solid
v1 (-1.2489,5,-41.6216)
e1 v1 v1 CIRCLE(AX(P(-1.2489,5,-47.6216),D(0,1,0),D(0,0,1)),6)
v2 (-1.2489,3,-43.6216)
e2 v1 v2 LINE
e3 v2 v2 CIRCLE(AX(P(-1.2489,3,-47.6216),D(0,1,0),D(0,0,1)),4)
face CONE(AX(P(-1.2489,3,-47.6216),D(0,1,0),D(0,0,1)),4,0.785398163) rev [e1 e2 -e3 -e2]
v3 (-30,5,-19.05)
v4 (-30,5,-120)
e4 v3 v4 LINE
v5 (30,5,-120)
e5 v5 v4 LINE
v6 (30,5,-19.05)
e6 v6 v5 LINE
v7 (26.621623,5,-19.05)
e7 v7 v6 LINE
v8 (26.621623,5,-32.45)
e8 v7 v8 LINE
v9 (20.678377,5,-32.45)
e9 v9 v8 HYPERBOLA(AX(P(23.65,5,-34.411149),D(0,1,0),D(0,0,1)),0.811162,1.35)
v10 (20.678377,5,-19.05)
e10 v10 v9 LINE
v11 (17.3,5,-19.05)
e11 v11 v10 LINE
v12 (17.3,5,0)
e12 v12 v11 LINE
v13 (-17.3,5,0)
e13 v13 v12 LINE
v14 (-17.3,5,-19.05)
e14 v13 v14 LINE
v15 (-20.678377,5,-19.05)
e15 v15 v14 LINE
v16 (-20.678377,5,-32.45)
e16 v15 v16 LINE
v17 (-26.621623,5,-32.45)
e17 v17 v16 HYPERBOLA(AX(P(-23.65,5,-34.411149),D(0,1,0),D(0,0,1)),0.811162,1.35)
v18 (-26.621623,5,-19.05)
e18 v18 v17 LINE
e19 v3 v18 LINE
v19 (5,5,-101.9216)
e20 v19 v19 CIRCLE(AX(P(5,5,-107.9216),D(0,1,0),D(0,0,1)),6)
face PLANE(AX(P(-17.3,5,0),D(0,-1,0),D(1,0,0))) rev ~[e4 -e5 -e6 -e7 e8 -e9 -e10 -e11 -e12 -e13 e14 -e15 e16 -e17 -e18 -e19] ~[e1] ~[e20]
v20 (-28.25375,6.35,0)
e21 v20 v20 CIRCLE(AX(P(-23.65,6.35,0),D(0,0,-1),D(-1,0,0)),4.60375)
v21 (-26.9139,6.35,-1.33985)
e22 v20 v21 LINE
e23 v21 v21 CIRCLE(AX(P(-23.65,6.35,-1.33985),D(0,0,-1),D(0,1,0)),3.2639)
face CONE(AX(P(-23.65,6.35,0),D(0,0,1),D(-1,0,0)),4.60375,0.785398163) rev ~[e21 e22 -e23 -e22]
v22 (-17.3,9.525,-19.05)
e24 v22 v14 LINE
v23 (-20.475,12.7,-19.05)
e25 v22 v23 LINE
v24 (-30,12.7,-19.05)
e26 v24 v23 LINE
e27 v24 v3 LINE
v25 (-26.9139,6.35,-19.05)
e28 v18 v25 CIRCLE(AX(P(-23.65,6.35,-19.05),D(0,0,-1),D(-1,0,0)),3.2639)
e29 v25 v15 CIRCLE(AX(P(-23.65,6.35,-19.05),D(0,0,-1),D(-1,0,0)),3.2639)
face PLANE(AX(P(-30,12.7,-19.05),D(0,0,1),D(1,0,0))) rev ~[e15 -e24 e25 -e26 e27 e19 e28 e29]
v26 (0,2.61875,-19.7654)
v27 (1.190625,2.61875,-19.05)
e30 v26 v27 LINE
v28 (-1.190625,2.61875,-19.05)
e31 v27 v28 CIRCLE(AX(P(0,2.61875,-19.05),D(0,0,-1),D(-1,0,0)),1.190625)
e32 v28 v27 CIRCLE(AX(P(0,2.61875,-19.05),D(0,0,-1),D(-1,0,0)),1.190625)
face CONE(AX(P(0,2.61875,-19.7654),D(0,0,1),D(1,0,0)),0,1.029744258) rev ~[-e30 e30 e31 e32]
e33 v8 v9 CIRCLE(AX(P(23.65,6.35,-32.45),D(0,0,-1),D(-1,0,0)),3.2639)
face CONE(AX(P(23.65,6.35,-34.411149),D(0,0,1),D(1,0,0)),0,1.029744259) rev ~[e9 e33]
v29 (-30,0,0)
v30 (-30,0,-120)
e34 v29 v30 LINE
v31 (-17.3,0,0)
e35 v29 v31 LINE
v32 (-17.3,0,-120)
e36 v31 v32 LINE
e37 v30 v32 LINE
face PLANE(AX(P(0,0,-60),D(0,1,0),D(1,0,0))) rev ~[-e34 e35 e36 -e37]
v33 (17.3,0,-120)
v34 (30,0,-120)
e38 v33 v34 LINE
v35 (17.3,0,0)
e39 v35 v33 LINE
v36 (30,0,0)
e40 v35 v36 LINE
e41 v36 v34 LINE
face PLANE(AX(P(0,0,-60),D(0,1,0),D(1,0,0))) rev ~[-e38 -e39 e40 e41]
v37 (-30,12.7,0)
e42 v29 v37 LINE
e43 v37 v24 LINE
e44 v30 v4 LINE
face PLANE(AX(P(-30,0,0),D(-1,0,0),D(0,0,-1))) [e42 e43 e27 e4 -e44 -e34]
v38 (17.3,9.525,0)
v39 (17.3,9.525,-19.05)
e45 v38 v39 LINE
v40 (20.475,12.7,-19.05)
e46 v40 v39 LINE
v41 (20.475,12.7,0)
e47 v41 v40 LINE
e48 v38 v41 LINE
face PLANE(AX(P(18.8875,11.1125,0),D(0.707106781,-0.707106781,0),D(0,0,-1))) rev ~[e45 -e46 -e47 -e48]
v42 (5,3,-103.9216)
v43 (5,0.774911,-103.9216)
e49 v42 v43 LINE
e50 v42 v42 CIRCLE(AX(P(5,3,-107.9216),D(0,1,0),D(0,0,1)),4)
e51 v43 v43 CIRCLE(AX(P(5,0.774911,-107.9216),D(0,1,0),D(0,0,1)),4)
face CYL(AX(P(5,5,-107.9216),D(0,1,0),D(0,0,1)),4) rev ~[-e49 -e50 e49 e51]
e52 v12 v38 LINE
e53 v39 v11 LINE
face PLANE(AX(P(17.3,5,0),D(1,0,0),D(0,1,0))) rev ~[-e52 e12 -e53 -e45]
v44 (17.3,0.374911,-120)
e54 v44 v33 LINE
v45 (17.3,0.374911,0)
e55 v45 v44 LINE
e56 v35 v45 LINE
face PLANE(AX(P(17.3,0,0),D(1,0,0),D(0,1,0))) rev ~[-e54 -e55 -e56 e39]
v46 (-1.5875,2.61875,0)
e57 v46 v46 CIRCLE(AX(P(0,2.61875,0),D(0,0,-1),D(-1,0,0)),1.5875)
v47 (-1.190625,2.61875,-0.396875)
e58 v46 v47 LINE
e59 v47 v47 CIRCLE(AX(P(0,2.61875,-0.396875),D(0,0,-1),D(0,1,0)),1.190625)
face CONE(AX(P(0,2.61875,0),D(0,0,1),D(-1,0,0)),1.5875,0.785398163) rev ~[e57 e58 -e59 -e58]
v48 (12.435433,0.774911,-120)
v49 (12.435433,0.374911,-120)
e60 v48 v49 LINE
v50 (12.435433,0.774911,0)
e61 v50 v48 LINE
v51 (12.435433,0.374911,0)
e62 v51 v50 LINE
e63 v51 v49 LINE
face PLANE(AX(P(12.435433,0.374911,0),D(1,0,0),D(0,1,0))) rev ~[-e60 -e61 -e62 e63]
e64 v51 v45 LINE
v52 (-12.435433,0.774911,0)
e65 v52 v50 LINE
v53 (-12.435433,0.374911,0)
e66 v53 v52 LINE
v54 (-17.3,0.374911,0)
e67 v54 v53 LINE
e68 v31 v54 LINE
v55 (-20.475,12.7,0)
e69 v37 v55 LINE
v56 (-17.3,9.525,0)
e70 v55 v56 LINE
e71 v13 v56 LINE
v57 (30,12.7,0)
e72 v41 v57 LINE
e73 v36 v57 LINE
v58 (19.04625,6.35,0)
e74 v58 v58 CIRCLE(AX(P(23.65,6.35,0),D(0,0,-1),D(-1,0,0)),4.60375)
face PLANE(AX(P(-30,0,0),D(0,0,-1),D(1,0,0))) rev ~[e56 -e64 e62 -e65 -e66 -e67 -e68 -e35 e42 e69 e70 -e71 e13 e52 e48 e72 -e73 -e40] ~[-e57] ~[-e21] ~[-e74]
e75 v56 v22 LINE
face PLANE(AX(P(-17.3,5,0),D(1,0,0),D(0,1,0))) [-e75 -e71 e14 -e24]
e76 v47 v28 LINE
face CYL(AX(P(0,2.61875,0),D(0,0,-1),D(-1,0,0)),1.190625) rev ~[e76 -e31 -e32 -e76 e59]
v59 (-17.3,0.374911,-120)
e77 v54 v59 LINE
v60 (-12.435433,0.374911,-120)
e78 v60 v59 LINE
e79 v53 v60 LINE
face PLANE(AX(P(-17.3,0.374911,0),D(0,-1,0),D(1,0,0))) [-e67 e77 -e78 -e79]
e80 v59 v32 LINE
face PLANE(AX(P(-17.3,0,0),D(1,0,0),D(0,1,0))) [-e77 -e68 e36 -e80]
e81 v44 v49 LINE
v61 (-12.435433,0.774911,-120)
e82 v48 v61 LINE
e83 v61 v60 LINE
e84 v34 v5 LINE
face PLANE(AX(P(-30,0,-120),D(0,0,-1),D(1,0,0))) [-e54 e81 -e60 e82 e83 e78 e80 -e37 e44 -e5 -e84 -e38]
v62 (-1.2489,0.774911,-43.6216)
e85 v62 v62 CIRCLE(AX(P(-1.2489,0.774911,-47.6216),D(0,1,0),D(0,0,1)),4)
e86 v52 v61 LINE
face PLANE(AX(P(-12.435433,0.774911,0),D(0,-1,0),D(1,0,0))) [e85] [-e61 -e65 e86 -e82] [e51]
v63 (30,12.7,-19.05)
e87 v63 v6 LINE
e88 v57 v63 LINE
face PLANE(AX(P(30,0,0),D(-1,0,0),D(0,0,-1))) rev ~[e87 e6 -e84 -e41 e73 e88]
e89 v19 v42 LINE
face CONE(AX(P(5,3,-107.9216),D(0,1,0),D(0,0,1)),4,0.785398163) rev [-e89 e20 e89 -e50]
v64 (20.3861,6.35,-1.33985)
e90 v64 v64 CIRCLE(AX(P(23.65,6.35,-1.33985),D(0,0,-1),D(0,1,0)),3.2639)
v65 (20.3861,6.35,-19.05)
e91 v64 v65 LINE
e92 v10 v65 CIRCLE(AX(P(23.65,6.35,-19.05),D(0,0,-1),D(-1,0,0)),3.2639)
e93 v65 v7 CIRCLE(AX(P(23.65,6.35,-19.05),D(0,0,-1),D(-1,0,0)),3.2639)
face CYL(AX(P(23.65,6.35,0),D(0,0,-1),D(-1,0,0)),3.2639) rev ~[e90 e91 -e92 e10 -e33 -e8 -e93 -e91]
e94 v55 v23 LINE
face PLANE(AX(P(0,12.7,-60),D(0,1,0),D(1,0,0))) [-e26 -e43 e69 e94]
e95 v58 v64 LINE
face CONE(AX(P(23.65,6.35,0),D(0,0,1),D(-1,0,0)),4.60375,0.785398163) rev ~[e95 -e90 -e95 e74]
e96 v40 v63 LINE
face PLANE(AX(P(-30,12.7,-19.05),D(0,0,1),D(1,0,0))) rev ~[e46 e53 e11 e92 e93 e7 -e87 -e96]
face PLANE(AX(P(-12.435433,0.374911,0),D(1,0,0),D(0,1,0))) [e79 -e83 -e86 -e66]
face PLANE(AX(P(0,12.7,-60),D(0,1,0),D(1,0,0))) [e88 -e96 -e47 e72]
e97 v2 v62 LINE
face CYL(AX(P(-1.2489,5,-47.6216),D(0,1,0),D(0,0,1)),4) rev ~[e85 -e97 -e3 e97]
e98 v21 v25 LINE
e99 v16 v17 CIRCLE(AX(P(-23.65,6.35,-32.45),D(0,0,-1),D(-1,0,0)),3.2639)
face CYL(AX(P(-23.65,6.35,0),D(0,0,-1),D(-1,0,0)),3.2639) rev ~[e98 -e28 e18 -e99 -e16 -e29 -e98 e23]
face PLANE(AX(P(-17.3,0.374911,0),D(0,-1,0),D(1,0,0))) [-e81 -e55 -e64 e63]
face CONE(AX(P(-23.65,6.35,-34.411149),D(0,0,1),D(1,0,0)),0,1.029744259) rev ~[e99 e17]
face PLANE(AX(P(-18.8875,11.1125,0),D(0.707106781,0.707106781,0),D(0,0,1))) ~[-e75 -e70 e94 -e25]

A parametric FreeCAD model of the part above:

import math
import FreeCAD as App
import Part
import Sketcher

V = App.Vector


def edges_at(feature, points):
    """Names of the edges that pass closest to the given points."""
    edges = feature.Shape.Edges
    near = lambda p: min(range(len(edges)), key=lambda i: edges[i].distToShape(Part.Vertex(*p))[0])
    return sorted({f"Edge{near(p) + 1}" for p in points})

doc = App.newDocument("Part")
body = doc.addObject("PartDesign::Body", "Body")

# Sketch on XZ plane
sketch1 = body.newObject("Sketcher::SketchObject", "Sketch")
sketch1.AttachmentSupport = (doc.getObject("XZ_Plane"), [""])
sketch1.MapMode = "FlatFace"
sketch1.addGeometry([
    Part.LineSegment(V(-30, -120, 0), V(-30, 0, 0)),
    Part.LineSegment(V(-30, 0, 0), V(30, 0, 0)),
    Part.LineSegment(V(30, 0, 0), V(30, -120, 0)),
    Part.LineSegment(V(30, -120, 0), V(-30, -120, 0)),
], False)
sketch1.addConstraint([
    Sketcher.Constraint("Coincident", 0, 2, 1, 1),
    Sketcher.Constraint("Coincident", 1, 2, 2, 1),
    Sketcher.Constraint("Coincident", 2, 2, 3, 1),
    Sketcher.Constraint("Coincident", 3, 2, 0, 1),
    Sketcher.Constraint("Vertical", 0),
    Sketcher.Constraint("Horizontal", 1),
    Sketcher.Constraint("Vertical", 2),
    Sketcher.Constraint("Horizontal", 3),
    Sketcher.Constraint("Symmetric", 0, 2, 1, 2, -1, 1),
    Sketcher.Constraint("DistanceX", 1, 1, 1, 2, 60.0),
    Sketcher.Constraint("DistanceY", 0, 1, 0, 2, 120.0),
])
pad1 = body.newObject("PartDesign::Pad", "Pad")
pad1.Profile = sketch1
pad1.Length = 12.7
pad1.Reversed = True

# Sketch on XY plane
sketch2 = body.newObject("Sketcher::SketchObject", "Sketch001")
sketch2.AttachmentSupport = (doc.getObject("XY_Plane"), [""])
sketch2.MapMode = "FlatFace"
sketch2.addGeometry([
    Part.LineSegment(V(-17, 13, 0), V(-17, 5, 0)),
    Part.LineSegment(V(-17, 5, 0), V(17, 5, 0)),
    Part.LineSegment(V(17, 5, 0), V(17, 13, 0)),
    Part.LineSegment(V(17, 13, 0), V(-17, 13, 0)),
], False)
sketch2.addConstraint([
    Sketcher.Constraint("Coincident", 0, 2, 1, 1),
    Sketcher.Constraint("Coincident", 1, 2, 2, 1),
    Sketcher.Constraint("Coincident", 2, 2, 3, 1),
    Sketcher.Constraint("Coincident", 3, 2, 0, 1),
    Sketcher.Constraint("Vertical", 0),
    Sketcher.Constraint("Horizontal", 1),
    Sketcher.Constraint("Vertical", 2),
    Sketcher.Constraint("Horizontal", 3),
    Sketcher.Constraint("DistanceX", 1, 1, 1, 2, 34.6),
    Sketcher.Constraint("DistanceY", 0, 2, 0, 1, 7.7),
    Sketcher.Constraint("DistanceY", -1, 1, 0, 2, 5.0),
    Sketcher.Constraint("DistanceX", 0, 2, -1, 1, 17.3),
])
pocket1 = body.newObject("PartDesign::Pocket", "Pocket")
pocket1.Profile = sketch2
pocket1.Type = "ThroughAll"

# Sketch on XY plane
sketch3 = body.newObject("Sketcher::SketchObject", "Sketch002")
sketch3.AttachmentSupport = (doc.getObject("XY_Plane"), [""])
sketch3.MapMode = "FlatFace"
sketch3.addGeometry(Part.Circle(V(0, 2.6, 0), V(0, 0, 1), 1.2), False)
sketch3.addConstraint([
    Sketcher.Constraint("PointOnObject", 0, 3, -2),
    Sketcher.Constraint("Diameter", 0, 2.38125),
    Sketcher.Constraint("DistanceY", -1, 1, 0, 3, 2.61875),
])
doc.recompute()
hole = body.newObject("PartDesign::Hole", "Hole")
hole.Profile = sketch3
hole.ThreadType = "None"
hole.Diameter = 2.38125
hole.DepthType = "Dimension"
hole.Depth = 19.05
hole.DrillPoint = "Angled"
hole.DrillPointAngle = 118
hole.HoleCutType = "Countersink"
hole.HoleCutDiameter = 3.175
hole.HoleCutCountersinkAngle = 90

# Sketch on XY plane
sketch4 = body.newObject("Sketcher::SketchObject", "Sketch003")
sketch4.AttachmentSupport = (doc.getObject("XY_Plane"), [""])
sketch4.MapMode = "FlatFace"
sketch4.addGeometry([
    Part.LineSegment(V(-17, 0, 0), V(-125, -10, 0)),  # 0
    Part.LineSegment(V(-125, -10, 0), V(-125, -226, 0)),  # 1
    Part.LineSegment(V(-125, -226, 0), V(125, -226, 0)),  # 2
    Part.LineSegment(V(125, -226, 0), V(125, -10, 0)),  # 3
    Part.LineSegment(V(125, -10, 0), V(17, 0, 0)),  # 4
    Part.ArcOfCircle(Part.Circle(V(0, -193, 0), V(0, 0, 1), 193), math.radians(84.87), math.radians(95.13)),  # 5
], False)
sketch4.addConstraint([
    Sketcher.Constraint("Coincident", 0, 2, 1, 1),
    Sketcher.Constraint("Coincident", 1, 2, 2, 1),
    Sketcher.Constraint("Coincident", 2, 2, 3, 1),
    Sketcher.Constraint("Coincident", 3, 2, 4, 1),
    Sketcher.Constraint("Tangent", 4, 2, 5, 1),
    Sketcher.Constraint("Tangent", 5, 2, 0, 1),
    Sketcher.Constraint("Vertical", 1),
    Sketcher.Constraint("Horizontal", 2),
    Sketcher.Constraint("Vertical", 3),
    Sketcher.Constraint("Symmetric", 4, 2, 5, 2, -1, 1),
    Sketcher.Constraint("Symmetric", 0, 2, 3, 2, -2),
    Sketcher.Constraint("Radius", 5, 193.5),
    Sketcher.Constraint("DistanceX", -1, 1, 4, 2, 17.3),
    Sketcher.Constraint("DistanceY", 1, 2, 1, 1, 215.9012),
    Sketcher.Constraint("Distance", 0, 107.9506),
])
pocket2 = body.newObject("PartDesign::Pocket", "Pocket001")
pocket2.Profile = sketch4
pocket2.Type = "ThroughAll"
pocket2.Midplane = True

# Sketch on XY plane
sketch5 = body.newObject("Sketcher::SketchObject", "Sketch004")
sketch5.AttachmentSupport = (doc.getObject("XY_Plane"), [""])
sketch5.MapMode = "FlatFace"
sketch5.addGeometry([
    Part.Circle(V(-23.6, 6.3, 0), V(0, 0, 1), 3.3),
    Part.Circle(V(23.6, 6.3, 0), V(0, 0, 1), 3.3),
], False)
sketch5.addConstraint([
    Sketcher.Constraint("Equal", 0, 1),
    Sketcher.Constraint("Symmetric", 0, 3, 1, 3, -2),
    Sketcher.Constraint("Diameter", 0, 6.5278),
    Sketcher.Constraint("DistanceX", 0, 3, 1, 3, 47.3),
    Sketcher.Constraint("DistanceY", -1, 1, 0, 3, 6.35),
])
doc.recompute()
hole2 = body.newObject("PartDesign::Hole", "Hole001")
hole2.Profile = sketch5
hole2.ThreadType = "None"
hole2.Diameter = 6.5278
hole2.DepthType = "Dimension"
hole2.Depth = 32.45
hole2.DrillPoint = "Angled"
hole2.DrillPointAngle = 118
hole2.HoleCutType = "Countersink"
hole2.HoleCutDiameter = 9.2075
hole2.HoleCutCountersinkAngle = 90
doc.recompute()

chamfer = body.newObject("PartDesign::Chamfer", "Chamfer")
chamfer.Base = (hole2, edges_at(hole2, [(-17.3, 12.7, -60), (17.3, 12.7, -60)]))
chamfer.Size = 3.175

# Sketch on XZ plane
sketch6 = body.newObject("Sketcher::SketchObject", "Sketch005")
sketch6.AttachmentSupport = (doc.getObject("XZ_Plane"), [""])
sketch6.MapMode = "FlatFace"
sketch6.AttachmentOffset = App.Placement(V(0, 0, -5), App.Rotation())
sketch6.addGeometry([
    Part.Circle(V(5, -107.9, 0), V(0, 0, 1), 4),
    Part.Circle(V(-1.2, -47.6, 0), V(0, 0, 1), 4),
], False)
sketch6.addConstraint([
    Sketcher.Constraint("Equal", 0, 1),
    Sketcher.Constraint("Diameter", 0, 8.0),
    Sketcher.Constraint("DistanceX", -1, 1, 0, 3, 5.0),
    Sketcher.Constraint("DistanceY", 0, 3, 1, 3, 60.3),
    Sketcher.Constraint("DistanceY", 0, 3, -1, 1, 107.9216),
    Sketcher.Constraint("DistanceX", 1, 3, -1, 1, 1.2489),
])
pocket3 = body.newObject("PartDesign::Pocket", "Pocket002")
pocket3.Profile = sketch6
pocket3.Type = "ThroughAll"
pocket3.Reversed = True
doc.recompute()

chamfer2 = body.newObject("PartDesign::Chamfer", "Chamfer001")
chamfer2.Base = (pocket3, edges_at(pocket3, [(5, 5, -111.922), (-1.249, 5, -51.622)]))
chamfer2.Size = 2

# Sketch on XZ plane
sketch7 = body.newObject("Sketcher::SketchObject", "Sketch006")
sketch7.AttachmentSupport = (doc.getObject("XZ_Plane"), [""])
sketch7.MapMode = "FlatFace"
sketch7.AttachmentOffset = App.Placement(V(0, 0, -12.7), App.Rotation())
sketch7.addGeometry([
    Part.LineSegment(V(-30, -120, 0), V(-30, -19, 0)),
    Part.LineSegment(V(-30, -19, 0), V(30, -19, 0)),
    Part.LineSegment(V(30, -19, 0), V(30, -120, 0)),
    Part.LineSegment(V(30, -120, 0), V(-30, -120, 0)),
], False)
sketch7.addConstraint([
    Sketcher.Constraint("Coincident", 0, 2, 1, 1),
    Sketcher.Constraint("Coincident", 1, 2, 2, 1),
    Sketcher.Constraint("Coincident", 2, 2, 3, 1),
    Sketcher.Constraint("Coincident", 3, 2, 0, 1),
    Sketcher.Constraint("Vertical", 0),
    Sketcher.Constraint("Horizontal", 1),
    Sketcher.Constraint("Vertical", 2),
    Sketcher.Constraint("Horizontal", 3),
    Sketcher.Constraint("DistanceX", 1, 1, 1, 2, 60.0),
    Sketcher.Constraint("DistanceX", 0, 2, -1, 1, 30.0),
    Sketcher.Constraint("DistanceY", 2, 2, -1, 1, 120.0),
    Sketcher.Constraint("DistanceY", 0, 1, 0, 2, 100.95),
])
pocket4 = body.newObject("PartDesign::Pocket", "Pocket003")
pocket4.Profile = sketch7
pocket4.Length = 7.7
pocket4.Reversed = True

# Sketch on XY plane
sketch8 = body.newObject("Sketcher::SketchObject", "Sketch007")
sketch8.AttachmentSupport = (doc.getObject("XY_Plane"), [""])
sketch8.MapMode = "FlatFace"
sketch8.addGeometry([
    Part.LineSegment(V(-12.44, 0.77, 0), V(-12.44, 0.37, 0)),
    Part.LineSegment(V(-12.44, 0.37, 0), V(12.44, 0.37, 0)),
    Part.LineSegment(V(12.44, 0.37, 0), V(12.44, 0.77, 0)),
    Part.LineSegment(V(12.44, 0.77, 0), V(-12.44, 0.77, 0)),
], False)
sketch8.addConstraint([
    Sketcher.Constraint("Coincident", 0, 2, 1, 1),
    Sketcher.Constraint("Coincident", 1, 2, 2, 1),
    Sketcher.Constraint("Coincident", 2, 2, 3, 1),
    Sketcher.Constraint("Coincident", 3, 2, 0, 1),
    Sketcher.Constraint("Vertical", 0),
    Sketcher.Constraint("Horizontal", 1),
    Sketcher.Constraint("Vertical", 2),
    Sketcher.Constraint("Horizontal", 3),
    Sketcher.Constraint("DistanceY", 0, 2, 0, 1, 0.4),
    Sketcher.Constraint("DistanceX", 1, 1, 1, 2, 24.870866),
    Sketcher.Constraint("DistanceY", -1, 1, 0, 2, 0.374911),
    Sketcher.Constraint("DistanceX", 0, 2, -1, 1, 12.435433),
])
pocket5 = body.newObject("PartDesign::Pocket", "Pocket004")
pocket5.Profile = sketch8
pocket5.Type = "ThroughAll"

# Sketch on XY plane
sketch9 = body.newObject("Sketcher::SketchObject", "Sketch008")
sketch9.AttachmentSupport = (doc.getObject("XY_Plane"), [""])
sketch9.MapMode = "FlatFace"
sketch9.addGeometry([
    Part.LineSegment(V(-17.3, 0.37, 0), V(-17.3, 0, 0)),
    Part.LineSegment(V(-17.3, 0, 0), V(17.3, 0, 0)),
    Part.LineSegment(V(17.3, 0, 0), V(17.3, 0.37, 0)),
    Part.LineSegment(V(17.3, 0.37, 0), V(-17.3, 0.37, 0)),
], False)
sketch9.addConstraint([
    Sketcher.Constraint("Coincident", 0, 2, 1, 1),
    Sketcher.Constraint("Coincident", 1, 2, 2, 1),
    Sketcher.Constraint("Coincident", 2, 2, 3, 1),
    Sketcher.Constraint("Coincident", 3, 2, 0, 1),
    Sketcher.Constraint("Vertical", 0),
    Sketcher.Constraint("Horizontal", 1),
    Sketcher.Constraint("Vertical", 2),
    Sketcher.Constraint("Horizontal", 3),
    Sketcher.Constraint("Symmetric", 0, 2, 1, 2, -1, 1),
    Sketcher.Constraint("DistanceX", 1, 1, 1, 2, 34.6),
    Sketcher.Constraint("DistanceY", 0, 2, 0, 1, 0.374911),
])
pocket6 = body.newObject("PartDesign::Pocket", "Pocket005")
pocket6.Profile = sketch9
pocket6.Type = "ThroughAll"

doc.recompute()
